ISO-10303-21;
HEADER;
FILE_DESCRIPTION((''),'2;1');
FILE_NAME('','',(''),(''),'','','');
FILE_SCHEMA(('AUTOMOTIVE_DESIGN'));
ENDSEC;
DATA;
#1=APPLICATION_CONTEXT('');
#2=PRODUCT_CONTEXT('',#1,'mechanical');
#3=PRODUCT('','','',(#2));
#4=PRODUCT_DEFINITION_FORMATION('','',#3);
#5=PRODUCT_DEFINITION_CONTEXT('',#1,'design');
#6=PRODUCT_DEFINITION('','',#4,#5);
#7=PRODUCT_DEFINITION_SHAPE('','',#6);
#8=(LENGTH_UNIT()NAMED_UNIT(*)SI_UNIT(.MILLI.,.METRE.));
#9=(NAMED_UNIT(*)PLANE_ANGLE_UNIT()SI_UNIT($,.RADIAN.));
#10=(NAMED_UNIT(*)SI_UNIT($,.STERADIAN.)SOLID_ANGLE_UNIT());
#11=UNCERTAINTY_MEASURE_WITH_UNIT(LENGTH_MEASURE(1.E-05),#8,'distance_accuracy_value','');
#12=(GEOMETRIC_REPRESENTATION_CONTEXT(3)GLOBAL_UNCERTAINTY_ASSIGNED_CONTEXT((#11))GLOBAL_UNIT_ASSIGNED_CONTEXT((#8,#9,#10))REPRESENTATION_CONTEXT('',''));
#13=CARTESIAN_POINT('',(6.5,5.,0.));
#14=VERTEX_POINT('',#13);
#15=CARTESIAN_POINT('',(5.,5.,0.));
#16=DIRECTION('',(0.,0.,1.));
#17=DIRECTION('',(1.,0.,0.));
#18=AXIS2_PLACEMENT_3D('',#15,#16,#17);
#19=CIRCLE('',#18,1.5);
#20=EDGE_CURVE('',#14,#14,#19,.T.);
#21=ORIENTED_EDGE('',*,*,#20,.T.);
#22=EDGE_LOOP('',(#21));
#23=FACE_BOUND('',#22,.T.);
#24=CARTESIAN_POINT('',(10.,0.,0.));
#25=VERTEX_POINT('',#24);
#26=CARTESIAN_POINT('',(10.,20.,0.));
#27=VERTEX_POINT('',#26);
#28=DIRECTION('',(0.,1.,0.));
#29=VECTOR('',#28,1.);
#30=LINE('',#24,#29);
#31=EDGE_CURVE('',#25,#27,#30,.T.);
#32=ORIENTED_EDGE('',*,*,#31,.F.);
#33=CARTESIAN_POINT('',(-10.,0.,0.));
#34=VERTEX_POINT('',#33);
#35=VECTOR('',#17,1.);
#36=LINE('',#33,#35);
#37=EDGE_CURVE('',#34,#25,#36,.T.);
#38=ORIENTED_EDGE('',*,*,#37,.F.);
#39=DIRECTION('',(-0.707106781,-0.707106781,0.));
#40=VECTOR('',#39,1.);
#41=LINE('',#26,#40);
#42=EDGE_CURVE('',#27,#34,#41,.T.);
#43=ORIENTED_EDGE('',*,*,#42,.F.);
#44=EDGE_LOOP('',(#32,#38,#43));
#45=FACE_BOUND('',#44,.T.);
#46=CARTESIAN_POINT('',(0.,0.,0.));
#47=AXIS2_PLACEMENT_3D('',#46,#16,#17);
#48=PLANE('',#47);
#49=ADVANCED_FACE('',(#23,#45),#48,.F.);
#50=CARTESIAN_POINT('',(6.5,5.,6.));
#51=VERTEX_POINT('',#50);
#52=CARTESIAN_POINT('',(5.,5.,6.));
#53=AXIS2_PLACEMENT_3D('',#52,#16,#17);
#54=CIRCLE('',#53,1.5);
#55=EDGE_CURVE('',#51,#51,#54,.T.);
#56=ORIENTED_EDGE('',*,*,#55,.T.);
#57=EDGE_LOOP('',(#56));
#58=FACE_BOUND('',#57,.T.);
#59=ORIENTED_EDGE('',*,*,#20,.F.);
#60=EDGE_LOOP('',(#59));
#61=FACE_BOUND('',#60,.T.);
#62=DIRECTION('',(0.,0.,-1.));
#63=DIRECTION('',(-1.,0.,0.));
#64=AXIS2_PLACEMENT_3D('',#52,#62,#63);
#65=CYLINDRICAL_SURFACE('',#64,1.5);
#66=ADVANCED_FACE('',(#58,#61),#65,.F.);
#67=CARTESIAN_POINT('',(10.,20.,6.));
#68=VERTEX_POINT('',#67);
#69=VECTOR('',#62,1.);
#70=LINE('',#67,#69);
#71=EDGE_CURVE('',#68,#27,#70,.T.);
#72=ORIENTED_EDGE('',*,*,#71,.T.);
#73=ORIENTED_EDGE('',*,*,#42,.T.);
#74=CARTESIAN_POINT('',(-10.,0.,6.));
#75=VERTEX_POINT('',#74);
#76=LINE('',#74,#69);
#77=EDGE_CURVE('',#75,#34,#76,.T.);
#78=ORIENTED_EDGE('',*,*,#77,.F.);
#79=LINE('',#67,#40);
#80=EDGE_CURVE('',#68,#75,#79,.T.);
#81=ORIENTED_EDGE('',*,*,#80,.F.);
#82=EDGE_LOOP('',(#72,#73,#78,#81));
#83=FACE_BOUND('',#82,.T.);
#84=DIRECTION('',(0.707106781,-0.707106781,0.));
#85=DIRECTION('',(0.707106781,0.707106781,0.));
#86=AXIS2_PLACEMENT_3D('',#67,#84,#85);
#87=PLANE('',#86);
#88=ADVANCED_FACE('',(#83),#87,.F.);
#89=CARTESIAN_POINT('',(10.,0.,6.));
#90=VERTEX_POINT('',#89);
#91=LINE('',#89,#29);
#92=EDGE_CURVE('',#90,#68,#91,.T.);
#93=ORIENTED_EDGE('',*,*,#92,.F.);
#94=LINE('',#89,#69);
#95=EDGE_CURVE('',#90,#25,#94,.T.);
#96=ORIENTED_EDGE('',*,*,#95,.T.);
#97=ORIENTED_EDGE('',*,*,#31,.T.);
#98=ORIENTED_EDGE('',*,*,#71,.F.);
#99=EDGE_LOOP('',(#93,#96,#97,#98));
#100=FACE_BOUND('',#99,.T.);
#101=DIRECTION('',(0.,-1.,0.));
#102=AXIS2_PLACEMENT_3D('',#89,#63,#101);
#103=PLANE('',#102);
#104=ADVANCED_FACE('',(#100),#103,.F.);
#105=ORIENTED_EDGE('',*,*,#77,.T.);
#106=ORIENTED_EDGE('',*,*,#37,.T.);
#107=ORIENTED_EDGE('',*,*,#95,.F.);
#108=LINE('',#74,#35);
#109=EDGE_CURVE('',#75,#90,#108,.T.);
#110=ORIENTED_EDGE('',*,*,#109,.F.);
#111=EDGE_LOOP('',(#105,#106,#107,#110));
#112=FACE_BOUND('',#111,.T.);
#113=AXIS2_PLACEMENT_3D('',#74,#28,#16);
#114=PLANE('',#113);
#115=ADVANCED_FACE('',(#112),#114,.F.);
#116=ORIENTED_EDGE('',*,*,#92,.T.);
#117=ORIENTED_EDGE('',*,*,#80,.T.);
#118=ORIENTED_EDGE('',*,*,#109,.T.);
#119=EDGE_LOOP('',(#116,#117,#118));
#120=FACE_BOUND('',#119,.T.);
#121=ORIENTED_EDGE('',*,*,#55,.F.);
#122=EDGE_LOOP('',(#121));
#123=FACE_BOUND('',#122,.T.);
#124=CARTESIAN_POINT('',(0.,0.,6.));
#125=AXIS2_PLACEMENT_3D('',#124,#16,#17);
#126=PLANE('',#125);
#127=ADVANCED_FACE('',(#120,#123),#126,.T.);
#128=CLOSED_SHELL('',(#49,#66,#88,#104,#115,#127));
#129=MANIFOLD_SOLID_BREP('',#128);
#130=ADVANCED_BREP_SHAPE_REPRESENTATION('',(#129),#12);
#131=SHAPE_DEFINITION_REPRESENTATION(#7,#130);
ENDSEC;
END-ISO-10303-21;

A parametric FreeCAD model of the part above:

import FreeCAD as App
import Part
import Sketcher
Q = App.Units.Quantity


def add_polygon(sketch, points):
    """Adds a closed chain of lines whose ends are joined by coincident constraints."""
    first, n = sketch.GeometryCount, len(points)
    for a, b in zip(points, points[1:] + points[:1]):
        sketch.addGeometry(Part.LineSegment(App.Vector(*a, 0), App.Vector(*b, 0)), False)
    for i in range(n):
        sketch.addConstraint(Sketcher.Constraint("Coincident", first + i, 2, first + (i + 1) % n, 1))

doc = App.newDocument("Part")
body = doc.addObject("PartDesign::Body", "Body")

sketch1 = body.newObject("Sketcher::SketchObject", "Sketch")
sketch1.AttachmentSupport = (doc.getObject("XY_Plane"), [""])
sketch1.MapMode = "FlatFace"
add_polygon(sketch1, [(-10, 0), (10, 0), (10, 20)])
sketch1.addGeometry(Part.Circle(App.Vector(5, 5, 0), App.Vector(0, 0, 1), 1.5), False)
sketch1.addConstraint([
    Sketcher.Constraint("Horizontal", 0),
    Sketcher.Constraint("Vertical", 1),
    Sketcher.Constraint("Symmetric", 0, 2, 2, 2, -1, 1),
    Sketcher.Constraint("Equal", 0, 1),
    Sketcher.Constraint("Diameter", 3, Q("3 mm")),
    Sketcher.Constraint("DistanceX", 0, 1, 0, 2, Q("20 mm")),
    Sketcher.Constraint("DistanceX", -1, 1, 3, 3, Q("5 mm")),
    Sketcher.Constraint("DistanceY", -1, 1, 3, 3, Q("5 mm")),
])
pad1 = body.newObject("PartDesign::Pad", "Pad")
pad1.Profile = sketch1
pad1.Length = 6

doc.recompute()
